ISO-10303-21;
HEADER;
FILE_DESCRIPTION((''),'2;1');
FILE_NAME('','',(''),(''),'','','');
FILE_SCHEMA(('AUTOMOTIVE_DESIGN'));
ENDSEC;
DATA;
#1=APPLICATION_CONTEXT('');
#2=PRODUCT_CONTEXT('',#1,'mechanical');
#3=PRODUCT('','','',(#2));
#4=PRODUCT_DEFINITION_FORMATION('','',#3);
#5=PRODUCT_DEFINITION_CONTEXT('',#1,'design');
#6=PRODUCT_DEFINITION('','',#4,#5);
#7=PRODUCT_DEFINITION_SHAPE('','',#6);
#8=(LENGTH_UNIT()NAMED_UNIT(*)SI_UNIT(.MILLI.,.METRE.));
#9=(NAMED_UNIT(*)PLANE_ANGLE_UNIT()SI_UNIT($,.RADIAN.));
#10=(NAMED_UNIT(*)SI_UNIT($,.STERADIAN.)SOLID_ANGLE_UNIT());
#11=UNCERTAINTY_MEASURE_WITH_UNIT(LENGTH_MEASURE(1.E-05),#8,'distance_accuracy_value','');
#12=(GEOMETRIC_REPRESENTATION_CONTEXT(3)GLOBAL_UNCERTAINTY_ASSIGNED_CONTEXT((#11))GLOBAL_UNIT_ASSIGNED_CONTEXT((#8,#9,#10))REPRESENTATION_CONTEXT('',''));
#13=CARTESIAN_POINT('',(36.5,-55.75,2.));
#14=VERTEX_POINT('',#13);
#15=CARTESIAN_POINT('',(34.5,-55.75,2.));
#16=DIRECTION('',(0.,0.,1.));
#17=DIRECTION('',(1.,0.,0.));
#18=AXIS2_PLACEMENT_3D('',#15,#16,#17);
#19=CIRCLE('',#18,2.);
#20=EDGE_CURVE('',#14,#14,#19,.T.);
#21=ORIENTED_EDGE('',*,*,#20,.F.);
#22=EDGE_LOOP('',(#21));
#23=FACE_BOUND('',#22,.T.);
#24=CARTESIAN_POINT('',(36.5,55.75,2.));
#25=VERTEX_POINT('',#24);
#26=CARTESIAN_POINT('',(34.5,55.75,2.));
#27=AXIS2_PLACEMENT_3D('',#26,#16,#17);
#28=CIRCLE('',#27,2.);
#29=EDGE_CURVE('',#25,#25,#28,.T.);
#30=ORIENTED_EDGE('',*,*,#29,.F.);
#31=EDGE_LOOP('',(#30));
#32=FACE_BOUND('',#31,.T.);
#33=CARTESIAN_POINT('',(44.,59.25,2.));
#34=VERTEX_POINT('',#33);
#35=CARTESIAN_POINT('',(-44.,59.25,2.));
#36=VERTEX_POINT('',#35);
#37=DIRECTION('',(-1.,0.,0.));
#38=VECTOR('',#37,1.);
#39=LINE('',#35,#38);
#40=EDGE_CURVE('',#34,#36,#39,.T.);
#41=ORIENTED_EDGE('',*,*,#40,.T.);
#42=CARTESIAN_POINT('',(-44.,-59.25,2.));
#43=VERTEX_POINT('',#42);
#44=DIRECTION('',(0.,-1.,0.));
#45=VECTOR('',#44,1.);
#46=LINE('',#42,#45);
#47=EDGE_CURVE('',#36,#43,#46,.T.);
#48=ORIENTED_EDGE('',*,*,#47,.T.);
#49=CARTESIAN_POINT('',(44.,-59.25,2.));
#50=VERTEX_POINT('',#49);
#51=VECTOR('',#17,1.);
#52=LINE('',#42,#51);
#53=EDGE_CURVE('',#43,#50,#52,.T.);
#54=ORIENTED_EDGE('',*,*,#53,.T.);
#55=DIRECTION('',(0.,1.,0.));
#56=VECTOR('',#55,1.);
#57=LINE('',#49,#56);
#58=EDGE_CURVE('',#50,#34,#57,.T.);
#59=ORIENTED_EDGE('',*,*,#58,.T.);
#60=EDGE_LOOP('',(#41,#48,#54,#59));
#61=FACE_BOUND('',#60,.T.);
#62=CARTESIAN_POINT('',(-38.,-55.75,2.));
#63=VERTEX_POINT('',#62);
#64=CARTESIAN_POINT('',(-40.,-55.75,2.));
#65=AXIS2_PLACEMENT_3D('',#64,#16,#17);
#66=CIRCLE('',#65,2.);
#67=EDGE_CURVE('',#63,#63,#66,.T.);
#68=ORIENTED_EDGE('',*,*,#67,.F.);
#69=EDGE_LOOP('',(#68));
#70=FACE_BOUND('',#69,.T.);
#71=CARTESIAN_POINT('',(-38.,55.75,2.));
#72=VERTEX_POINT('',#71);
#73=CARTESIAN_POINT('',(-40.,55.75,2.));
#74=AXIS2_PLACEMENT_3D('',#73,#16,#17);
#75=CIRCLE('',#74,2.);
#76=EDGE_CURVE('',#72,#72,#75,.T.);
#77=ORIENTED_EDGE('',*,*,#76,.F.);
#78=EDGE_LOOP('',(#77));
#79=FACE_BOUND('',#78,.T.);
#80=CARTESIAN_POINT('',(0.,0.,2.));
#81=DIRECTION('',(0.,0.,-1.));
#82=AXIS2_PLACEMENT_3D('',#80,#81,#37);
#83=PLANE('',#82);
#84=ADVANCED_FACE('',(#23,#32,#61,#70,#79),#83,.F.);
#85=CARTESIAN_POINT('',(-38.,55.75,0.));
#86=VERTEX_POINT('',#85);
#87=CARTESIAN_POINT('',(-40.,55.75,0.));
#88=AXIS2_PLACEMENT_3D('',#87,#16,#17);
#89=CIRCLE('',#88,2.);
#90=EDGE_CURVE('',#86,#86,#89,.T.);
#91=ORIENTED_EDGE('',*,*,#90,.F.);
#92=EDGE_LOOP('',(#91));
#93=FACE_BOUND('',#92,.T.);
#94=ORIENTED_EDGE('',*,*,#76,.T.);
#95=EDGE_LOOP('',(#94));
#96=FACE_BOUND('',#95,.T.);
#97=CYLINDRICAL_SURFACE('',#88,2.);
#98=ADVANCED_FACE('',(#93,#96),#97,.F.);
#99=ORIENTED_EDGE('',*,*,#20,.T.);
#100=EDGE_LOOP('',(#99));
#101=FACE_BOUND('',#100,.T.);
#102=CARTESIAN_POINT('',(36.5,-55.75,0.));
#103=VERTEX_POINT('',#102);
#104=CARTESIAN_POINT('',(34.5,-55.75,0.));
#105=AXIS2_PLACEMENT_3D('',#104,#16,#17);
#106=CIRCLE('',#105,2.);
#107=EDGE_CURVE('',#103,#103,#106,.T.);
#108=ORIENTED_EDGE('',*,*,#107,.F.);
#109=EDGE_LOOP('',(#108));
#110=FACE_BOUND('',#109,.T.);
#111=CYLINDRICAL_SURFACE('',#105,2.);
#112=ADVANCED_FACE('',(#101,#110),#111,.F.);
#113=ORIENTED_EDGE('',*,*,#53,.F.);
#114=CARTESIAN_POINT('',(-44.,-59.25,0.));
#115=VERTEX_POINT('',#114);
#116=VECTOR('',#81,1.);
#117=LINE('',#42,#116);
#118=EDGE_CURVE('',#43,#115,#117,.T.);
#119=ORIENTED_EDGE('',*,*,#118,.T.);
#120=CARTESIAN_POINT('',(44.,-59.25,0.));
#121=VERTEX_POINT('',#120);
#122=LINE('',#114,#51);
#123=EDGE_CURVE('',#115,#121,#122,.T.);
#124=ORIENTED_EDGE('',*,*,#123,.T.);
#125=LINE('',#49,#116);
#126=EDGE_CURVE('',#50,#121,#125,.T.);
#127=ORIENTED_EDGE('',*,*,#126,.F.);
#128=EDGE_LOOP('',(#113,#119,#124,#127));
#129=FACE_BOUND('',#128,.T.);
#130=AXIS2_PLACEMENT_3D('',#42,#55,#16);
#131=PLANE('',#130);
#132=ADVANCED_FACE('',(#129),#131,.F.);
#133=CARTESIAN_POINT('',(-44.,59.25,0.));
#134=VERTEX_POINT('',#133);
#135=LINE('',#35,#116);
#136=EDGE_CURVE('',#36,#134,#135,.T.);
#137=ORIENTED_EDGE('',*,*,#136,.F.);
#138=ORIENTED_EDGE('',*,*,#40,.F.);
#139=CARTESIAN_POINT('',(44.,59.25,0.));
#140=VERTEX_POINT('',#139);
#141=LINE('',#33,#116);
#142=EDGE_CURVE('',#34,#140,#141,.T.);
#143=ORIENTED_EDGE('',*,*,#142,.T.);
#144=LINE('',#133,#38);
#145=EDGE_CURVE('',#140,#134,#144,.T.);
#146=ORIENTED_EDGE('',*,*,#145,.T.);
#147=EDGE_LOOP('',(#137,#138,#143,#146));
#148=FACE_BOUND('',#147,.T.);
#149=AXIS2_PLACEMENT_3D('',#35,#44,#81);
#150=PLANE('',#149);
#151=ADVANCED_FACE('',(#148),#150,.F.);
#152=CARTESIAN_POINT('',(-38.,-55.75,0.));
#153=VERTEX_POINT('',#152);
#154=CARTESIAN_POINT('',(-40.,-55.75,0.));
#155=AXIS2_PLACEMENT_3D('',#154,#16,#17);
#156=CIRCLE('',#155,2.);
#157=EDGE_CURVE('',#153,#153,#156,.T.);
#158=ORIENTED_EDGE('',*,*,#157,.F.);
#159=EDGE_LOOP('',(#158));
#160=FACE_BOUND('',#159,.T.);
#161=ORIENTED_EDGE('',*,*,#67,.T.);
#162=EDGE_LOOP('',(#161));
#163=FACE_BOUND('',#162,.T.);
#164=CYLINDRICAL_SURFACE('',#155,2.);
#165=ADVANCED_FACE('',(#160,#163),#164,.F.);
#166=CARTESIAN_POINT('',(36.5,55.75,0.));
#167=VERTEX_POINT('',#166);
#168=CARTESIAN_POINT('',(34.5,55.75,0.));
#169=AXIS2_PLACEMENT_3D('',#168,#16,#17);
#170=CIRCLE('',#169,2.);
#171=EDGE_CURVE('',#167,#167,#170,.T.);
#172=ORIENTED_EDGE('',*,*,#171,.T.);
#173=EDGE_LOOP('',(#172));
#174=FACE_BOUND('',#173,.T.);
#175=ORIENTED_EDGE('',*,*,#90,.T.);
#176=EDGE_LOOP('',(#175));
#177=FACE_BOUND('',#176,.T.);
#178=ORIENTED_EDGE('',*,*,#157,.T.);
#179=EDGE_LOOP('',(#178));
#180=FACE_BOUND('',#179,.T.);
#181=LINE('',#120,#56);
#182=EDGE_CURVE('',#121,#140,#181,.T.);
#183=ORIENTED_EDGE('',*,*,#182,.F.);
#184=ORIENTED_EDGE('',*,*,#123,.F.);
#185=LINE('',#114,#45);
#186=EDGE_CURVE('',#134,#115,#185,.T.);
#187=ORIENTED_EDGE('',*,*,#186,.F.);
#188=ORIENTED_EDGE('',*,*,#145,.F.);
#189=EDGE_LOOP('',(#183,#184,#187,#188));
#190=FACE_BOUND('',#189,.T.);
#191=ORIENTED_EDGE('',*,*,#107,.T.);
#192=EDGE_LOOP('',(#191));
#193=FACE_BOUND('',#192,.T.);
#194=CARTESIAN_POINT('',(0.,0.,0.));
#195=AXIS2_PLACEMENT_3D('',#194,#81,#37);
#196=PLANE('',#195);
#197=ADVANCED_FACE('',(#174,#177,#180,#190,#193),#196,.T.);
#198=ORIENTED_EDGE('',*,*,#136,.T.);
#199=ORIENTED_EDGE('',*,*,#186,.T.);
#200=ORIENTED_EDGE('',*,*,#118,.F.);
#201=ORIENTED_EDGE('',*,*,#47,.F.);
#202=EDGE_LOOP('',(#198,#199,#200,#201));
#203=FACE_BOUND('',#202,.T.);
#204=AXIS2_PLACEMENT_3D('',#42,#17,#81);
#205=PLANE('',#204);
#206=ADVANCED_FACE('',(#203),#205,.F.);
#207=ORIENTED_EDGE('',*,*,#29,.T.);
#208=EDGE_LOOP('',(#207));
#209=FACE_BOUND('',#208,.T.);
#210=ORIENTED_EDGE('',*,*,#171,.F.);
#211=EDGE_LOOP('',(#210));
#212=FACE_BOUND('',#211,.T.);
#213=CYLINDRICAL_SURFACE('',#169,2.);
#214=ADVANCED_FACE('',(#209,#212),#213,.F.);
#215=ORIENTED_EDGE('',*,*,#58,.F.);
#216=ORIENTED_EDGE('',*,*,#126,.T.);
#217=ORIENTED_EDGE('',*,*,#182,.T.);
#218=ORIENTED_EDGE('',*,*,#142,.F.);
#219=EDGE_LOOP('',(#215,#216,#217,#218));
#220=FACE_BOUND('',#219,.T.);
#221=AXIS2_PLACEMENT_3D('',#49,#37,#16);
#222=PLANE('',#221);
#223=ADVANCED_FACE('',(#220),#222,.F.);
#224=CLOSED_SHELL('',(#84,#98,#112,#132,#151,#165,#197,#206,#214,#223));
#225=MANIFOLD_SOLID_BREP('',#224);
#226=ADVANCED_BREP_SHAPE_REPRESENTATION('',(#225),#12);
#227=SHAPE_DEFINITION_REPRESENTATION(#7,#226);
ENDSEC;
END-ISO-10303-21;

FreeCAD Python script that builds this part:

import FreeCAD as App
import Part
import Sketcher


def add_polygon(sketch, points):
    """Adds a closed chain of lines whose ends are joined by coincident constraints."""
    first, n = sketch.GeometryCount, len(points)
    for a, b in zip(points, points[1:] + points[:1]):
        sketch.addGeometry(Part.LineSegment(App.Vector(*a, 0), App.Vector(*b, 0)), False)
    for i in range(n):
        sketch.addConstraint(Sketcher.Constraint("Coincident", first + i, 2, first + (i + 1) % n, 1))

doc = App.newDocument("Part")
body = doc.addObject("PartDesign::Body", "Body")

# Sketch on XY plane
sketch1 = body.newObject("Sketcher::SketchObject", "Sketch")
sketch1.AttachmentSupport = (doc.getObject("XY_Plane"), [""])
sketch1.MapMode = "FlatFace"
add_polygon(sketch1, [(-44, 59), (-44, -59), (44, -59), (44, 59)])  # lines 0-3
sketch1.addConstraint([
    Sketcher.Constraint("Vertical", 0),
    Sketcher.Constraint("Horizontal", 1),
    Sketcher.Constraint("Vertical", 2),
    Sketcher.Constraint("Horizontal", 3),
    Sketcher.Constraint("Symmetric", 0, 2, 2, 2, -1, 1),
    Sketcher.Constraint("DistanceX", 1, 1, 1, 2, 88.0),
    Sketcher.Constraint("DistanceY", 0, 2, 0, 1, 118.5),
])
pad1 = body.newObject("PartDesign::Pad", "Pad")
pad1.Profile = sketch1
pad1.Length = 2

# Sketch on XY plane
sketch2 = body.newObject("Sketcher::SketchObject", "Sketch001")
sketch2.AttachmentSupport = (doc.getObject("XY_Plane"), [""])
sketch2.MapMode = "FlatFace"
sketch2.AttachmentOffset = App.Placement(App.Vector(0, 0, 2), App.Rotation())
sketch2.addGeometry([
    Part.Circle(App.Vector(-40, 55.8, 0), App.Vector(0, 0, 1), 2),
    Part.Circle(App.Vector(-40, -55.8, 0), App.Vector(0, 0, 1), 2),
    Part.Circle(App.Vector(34.5, -55.8, 0), App.Vector(0, 0, 1), 2),
    Part.Circle(App.Vector(34.5, 55.8, 0), App.Vector(0, 0, 1), 2),
], False)
sketch2.addConstraint([
    Sketcher.Constraint("Equal", 0, 1),
    Sketcher.Constraint("Equal", 1, 2),
    Sketcher.Constraint("Equal", 2, 3),
    Sketcher.Constraint("Symmetric", 0, 3, 1, 3, -1),
    Sketcher.Constraint("Symmetric", 2, 3, 3, 3, -1),
    Sketcher.Constraint("Horizontal", 1, 3, 2, 3),
    Sketcher.Constraint("Diameter", 0, 4.0),
    Sketcher.Constraint("DistanceX", 0, 3, -1, 1, 40.0),
    Sketcher.Constraint("DistanceX", -1, 1, 2, 3, 34.5),
    Sketcher.Constraint("DistanceY", 1, 3, 0, 3, 111.5),
])
pocket1 = body.newObject("PartDesign::Pocket", "Pocket")
pocket1.Profile = sketch2
pocket1.Type = "ThroughAll"

doc.recompute()
